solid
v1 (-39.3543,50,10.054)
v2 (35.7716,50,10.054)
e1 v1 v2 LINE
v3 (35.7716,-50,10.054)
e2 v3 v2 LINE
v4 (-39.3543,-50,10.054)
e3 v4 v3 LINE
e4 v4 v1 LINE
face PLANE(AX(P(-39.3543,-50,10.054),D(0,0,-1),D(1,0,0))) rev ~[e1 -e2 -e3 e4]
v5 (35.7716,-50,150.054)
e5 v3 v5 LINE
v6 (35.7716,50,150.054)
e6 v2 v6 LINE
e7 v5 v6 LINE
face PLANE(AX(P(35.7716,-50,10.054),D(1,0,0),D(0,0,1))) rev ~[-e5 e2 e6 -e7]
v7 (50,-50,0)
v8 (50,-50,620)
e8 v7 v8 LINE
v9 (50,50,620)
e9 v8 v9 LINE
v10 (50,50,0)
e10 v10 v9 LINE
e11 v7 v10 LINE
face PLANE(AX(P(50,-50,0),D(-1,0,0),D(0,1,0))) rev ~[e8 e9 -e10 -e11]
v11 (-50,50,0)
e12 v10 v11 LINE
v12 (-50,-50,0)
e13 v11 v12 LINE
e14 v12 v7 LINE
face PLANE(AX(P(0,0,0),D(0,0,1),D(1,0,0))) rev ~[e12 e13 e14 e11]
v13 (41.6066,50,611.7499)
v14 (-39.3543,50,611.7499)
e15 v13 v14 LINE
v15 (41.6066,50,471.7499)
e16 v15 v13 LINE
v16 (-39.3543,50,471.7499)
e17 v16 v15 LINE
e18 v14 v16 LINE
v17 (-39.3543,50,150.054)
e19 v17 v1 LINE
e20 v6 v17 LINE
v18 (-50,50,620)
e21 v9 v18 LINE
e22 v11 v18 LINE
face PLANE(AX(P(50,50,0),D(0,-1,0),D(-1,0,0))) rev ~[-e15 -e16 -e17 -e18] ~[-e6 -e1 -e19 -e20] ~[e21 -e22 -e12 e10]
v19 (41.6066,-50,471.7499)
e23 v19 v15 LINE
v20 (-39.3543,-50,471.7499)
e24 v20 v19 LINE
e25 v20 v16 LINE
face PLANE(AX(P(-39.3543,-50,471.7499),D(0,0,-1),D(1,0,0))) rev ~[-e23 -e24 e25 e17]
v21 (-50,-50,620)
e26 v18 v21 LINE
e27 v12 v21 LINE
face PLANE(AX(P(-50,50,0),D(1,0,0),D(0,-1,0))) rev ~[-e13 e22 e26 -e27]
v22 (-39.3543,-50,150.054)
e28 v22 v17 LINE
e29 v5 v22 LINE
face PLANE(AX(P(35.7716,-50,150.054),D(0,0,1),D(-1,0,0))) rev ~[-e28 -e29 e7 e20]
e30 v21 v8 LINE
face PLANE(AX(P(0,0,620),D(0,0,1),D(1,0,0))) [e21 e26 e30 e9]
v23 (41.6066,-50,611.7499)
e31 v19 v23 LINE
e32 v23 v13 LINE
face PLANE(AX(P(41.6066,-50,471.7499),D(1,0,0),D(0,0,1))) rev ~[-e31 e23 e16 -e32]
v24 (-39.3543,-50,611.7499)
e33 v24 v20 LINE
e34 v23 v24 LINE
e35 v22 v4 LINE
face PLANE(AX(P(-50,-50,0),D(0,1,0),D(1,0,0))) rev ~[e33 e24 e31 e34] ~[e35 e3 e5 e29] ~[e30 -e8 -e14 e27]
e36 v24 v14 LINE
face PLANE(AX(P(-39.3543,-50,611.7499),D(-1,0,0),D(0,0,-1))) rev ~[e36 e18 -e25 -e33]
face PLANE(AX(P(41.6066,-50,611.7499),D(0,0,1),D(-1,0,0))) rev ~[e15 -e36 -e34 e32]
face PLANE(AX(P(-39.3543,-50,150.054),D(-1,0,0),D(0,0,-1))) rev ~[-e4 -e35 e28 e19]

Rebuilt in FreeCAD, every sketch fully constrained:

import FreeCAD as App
import Part
import Sketcher
Q = App.Units.Quantity


def add_polygon(sketch, points):
    """Adds a closed chain of lines whose ends are joined by coincident constraints."""
    first, n = sketch.GeometryCount, len(points)
    for a, b in zip(points, points[1:] + points[:1]):
        sketch.addGeometry(Part.LineSegment(App.Vector(*a, 0), App.Vector(*b, 0)), False)
    for i in range(n):
        sketch.addConstraint(Sketcher.Constraint("Coincident", first + i, 2, first + (i + 1) % n, 1))

doc = App.newDocument("Part")
body = doc.addObject("PartDesign::Body", "Body")

# Sketch on XY plane
sketch1 = doc.addObject("Sketcher::SketchObject", "Sketch")
body.addObject(sketch1)
sketch1.AttachmentSupport = (doc.XY_Plane, [""])
sketch1.MapMode = "FlatFace"
add_polygon(sketch1, [(-50, 50), (-50, -50), (50, -50), (50, 50)])  # lines 0-3
sketch1.addConstraint(Sketcher.Constraint("Vertical", 0))
sketch1.addConstraint(Sketcher.Constraint("Horizontal", 1))
sketch1.addConstraint(Sketcher.Constraint("Vertical", 2))
sketch1.addConstraint(Sketcher.Constraint("Horizontal", 3))
sketch1.addConstraint(Sketcher.Constraint("Symmetric", 0, 2, 2, 2, -1, 1))
sketch1.addConstraint(Sketcher.Constraint("Equal", 3, 0))
sketch1.addConstraint(Sketcher.Constraint("DistanceX", 1, 1, 1, 2, Q("100 mm")))
pad1 = doc.addObject("PartDesign::Pad", "Pad")
body.addObject(pad1)
pad1.Profile = sketch1
pad1.Length = 620

# Sketch on XZ plane
sketch2 = doc.addObject("Sketcher::SketchObject", "Sketch001")
body.addObject(sketch2)
sketch2.AttachmentSupport = (doc.XZ_Plane, [""])
sketch2.MapMode = "FlatFace"
sketch2.AttachmentOffset = App.Placement(App.Vector(0, 0, 50), App.Rotation())
add_polygon(sketch2, [(42, 472), (42, 612), (-39, 612), (-39, 472)])  # lines 0-3
add_polygon(sketch2, [(36, 10), (36, 150), (-39, 150), (-39, 10)])  # lines 4-7
sketch2.addConstraint(Sketcher.Constraint("Vertical", 0))
sketch2.addConstraint(Sketcher.Constraint("Horizontal", 1))
sketch2.addConstraint(Sketcher.Constraint("Vertical", 2))
sketch2.addConstraint(Sketcher.Constraint("Horizontal", 3))
sketch2.addConstraint(Sketcher.Constraint("Vertical", 4))
sketch2.addConstraint(Sketcher.Constraint("Horizontal", 5))
sketch2.addConstraint(Sketcher.Constraint("Vertical", 6))
sketch2.addConstraint(Sketcher.Constraint("Horizontal", 7))
sketch2.addConstraint(Sketcher.Constraint("Vertical", 2, 2, 5, 2))
sketch2.addConstraint(Sketcher.Constraint("Equal", 2, 4))
sketch2.addConstraint(Sketcher.Constraint("DistanceY", 0, 1, 0, 2, Q("140 mm")))
sketch2.addConstraint(Sketcher.Constraint("DistanceX", 1, 2, 1, 1, Q("80.961 mm")))
sketch2.addConstraint(Sketcher.Constraint("DistanceX", 5, 2, 5, 1, Q("75.126 mm")))
sketch2.addConstraint(Sketcher.Constraint("DistanceY", -1, 1, 0, 2, Q("611.75 mm")))
sketch2.addConstraint(Sketcher.Constraint("DistanceY", -1, 1, 4, 2, Q("150.054 mm")))
sketch2.addConstraint(Sketcher.Constraint("DistanceX", -1, 1, 0, 2, Q("41.6066 mm")))
pocket1 = doc.addObject("PartDesign::Pocket", "Pocket")
body.addObject(pocket1)
pocket1.Profile = sketch2
pocket1.Length = 620

doc.recompute()
